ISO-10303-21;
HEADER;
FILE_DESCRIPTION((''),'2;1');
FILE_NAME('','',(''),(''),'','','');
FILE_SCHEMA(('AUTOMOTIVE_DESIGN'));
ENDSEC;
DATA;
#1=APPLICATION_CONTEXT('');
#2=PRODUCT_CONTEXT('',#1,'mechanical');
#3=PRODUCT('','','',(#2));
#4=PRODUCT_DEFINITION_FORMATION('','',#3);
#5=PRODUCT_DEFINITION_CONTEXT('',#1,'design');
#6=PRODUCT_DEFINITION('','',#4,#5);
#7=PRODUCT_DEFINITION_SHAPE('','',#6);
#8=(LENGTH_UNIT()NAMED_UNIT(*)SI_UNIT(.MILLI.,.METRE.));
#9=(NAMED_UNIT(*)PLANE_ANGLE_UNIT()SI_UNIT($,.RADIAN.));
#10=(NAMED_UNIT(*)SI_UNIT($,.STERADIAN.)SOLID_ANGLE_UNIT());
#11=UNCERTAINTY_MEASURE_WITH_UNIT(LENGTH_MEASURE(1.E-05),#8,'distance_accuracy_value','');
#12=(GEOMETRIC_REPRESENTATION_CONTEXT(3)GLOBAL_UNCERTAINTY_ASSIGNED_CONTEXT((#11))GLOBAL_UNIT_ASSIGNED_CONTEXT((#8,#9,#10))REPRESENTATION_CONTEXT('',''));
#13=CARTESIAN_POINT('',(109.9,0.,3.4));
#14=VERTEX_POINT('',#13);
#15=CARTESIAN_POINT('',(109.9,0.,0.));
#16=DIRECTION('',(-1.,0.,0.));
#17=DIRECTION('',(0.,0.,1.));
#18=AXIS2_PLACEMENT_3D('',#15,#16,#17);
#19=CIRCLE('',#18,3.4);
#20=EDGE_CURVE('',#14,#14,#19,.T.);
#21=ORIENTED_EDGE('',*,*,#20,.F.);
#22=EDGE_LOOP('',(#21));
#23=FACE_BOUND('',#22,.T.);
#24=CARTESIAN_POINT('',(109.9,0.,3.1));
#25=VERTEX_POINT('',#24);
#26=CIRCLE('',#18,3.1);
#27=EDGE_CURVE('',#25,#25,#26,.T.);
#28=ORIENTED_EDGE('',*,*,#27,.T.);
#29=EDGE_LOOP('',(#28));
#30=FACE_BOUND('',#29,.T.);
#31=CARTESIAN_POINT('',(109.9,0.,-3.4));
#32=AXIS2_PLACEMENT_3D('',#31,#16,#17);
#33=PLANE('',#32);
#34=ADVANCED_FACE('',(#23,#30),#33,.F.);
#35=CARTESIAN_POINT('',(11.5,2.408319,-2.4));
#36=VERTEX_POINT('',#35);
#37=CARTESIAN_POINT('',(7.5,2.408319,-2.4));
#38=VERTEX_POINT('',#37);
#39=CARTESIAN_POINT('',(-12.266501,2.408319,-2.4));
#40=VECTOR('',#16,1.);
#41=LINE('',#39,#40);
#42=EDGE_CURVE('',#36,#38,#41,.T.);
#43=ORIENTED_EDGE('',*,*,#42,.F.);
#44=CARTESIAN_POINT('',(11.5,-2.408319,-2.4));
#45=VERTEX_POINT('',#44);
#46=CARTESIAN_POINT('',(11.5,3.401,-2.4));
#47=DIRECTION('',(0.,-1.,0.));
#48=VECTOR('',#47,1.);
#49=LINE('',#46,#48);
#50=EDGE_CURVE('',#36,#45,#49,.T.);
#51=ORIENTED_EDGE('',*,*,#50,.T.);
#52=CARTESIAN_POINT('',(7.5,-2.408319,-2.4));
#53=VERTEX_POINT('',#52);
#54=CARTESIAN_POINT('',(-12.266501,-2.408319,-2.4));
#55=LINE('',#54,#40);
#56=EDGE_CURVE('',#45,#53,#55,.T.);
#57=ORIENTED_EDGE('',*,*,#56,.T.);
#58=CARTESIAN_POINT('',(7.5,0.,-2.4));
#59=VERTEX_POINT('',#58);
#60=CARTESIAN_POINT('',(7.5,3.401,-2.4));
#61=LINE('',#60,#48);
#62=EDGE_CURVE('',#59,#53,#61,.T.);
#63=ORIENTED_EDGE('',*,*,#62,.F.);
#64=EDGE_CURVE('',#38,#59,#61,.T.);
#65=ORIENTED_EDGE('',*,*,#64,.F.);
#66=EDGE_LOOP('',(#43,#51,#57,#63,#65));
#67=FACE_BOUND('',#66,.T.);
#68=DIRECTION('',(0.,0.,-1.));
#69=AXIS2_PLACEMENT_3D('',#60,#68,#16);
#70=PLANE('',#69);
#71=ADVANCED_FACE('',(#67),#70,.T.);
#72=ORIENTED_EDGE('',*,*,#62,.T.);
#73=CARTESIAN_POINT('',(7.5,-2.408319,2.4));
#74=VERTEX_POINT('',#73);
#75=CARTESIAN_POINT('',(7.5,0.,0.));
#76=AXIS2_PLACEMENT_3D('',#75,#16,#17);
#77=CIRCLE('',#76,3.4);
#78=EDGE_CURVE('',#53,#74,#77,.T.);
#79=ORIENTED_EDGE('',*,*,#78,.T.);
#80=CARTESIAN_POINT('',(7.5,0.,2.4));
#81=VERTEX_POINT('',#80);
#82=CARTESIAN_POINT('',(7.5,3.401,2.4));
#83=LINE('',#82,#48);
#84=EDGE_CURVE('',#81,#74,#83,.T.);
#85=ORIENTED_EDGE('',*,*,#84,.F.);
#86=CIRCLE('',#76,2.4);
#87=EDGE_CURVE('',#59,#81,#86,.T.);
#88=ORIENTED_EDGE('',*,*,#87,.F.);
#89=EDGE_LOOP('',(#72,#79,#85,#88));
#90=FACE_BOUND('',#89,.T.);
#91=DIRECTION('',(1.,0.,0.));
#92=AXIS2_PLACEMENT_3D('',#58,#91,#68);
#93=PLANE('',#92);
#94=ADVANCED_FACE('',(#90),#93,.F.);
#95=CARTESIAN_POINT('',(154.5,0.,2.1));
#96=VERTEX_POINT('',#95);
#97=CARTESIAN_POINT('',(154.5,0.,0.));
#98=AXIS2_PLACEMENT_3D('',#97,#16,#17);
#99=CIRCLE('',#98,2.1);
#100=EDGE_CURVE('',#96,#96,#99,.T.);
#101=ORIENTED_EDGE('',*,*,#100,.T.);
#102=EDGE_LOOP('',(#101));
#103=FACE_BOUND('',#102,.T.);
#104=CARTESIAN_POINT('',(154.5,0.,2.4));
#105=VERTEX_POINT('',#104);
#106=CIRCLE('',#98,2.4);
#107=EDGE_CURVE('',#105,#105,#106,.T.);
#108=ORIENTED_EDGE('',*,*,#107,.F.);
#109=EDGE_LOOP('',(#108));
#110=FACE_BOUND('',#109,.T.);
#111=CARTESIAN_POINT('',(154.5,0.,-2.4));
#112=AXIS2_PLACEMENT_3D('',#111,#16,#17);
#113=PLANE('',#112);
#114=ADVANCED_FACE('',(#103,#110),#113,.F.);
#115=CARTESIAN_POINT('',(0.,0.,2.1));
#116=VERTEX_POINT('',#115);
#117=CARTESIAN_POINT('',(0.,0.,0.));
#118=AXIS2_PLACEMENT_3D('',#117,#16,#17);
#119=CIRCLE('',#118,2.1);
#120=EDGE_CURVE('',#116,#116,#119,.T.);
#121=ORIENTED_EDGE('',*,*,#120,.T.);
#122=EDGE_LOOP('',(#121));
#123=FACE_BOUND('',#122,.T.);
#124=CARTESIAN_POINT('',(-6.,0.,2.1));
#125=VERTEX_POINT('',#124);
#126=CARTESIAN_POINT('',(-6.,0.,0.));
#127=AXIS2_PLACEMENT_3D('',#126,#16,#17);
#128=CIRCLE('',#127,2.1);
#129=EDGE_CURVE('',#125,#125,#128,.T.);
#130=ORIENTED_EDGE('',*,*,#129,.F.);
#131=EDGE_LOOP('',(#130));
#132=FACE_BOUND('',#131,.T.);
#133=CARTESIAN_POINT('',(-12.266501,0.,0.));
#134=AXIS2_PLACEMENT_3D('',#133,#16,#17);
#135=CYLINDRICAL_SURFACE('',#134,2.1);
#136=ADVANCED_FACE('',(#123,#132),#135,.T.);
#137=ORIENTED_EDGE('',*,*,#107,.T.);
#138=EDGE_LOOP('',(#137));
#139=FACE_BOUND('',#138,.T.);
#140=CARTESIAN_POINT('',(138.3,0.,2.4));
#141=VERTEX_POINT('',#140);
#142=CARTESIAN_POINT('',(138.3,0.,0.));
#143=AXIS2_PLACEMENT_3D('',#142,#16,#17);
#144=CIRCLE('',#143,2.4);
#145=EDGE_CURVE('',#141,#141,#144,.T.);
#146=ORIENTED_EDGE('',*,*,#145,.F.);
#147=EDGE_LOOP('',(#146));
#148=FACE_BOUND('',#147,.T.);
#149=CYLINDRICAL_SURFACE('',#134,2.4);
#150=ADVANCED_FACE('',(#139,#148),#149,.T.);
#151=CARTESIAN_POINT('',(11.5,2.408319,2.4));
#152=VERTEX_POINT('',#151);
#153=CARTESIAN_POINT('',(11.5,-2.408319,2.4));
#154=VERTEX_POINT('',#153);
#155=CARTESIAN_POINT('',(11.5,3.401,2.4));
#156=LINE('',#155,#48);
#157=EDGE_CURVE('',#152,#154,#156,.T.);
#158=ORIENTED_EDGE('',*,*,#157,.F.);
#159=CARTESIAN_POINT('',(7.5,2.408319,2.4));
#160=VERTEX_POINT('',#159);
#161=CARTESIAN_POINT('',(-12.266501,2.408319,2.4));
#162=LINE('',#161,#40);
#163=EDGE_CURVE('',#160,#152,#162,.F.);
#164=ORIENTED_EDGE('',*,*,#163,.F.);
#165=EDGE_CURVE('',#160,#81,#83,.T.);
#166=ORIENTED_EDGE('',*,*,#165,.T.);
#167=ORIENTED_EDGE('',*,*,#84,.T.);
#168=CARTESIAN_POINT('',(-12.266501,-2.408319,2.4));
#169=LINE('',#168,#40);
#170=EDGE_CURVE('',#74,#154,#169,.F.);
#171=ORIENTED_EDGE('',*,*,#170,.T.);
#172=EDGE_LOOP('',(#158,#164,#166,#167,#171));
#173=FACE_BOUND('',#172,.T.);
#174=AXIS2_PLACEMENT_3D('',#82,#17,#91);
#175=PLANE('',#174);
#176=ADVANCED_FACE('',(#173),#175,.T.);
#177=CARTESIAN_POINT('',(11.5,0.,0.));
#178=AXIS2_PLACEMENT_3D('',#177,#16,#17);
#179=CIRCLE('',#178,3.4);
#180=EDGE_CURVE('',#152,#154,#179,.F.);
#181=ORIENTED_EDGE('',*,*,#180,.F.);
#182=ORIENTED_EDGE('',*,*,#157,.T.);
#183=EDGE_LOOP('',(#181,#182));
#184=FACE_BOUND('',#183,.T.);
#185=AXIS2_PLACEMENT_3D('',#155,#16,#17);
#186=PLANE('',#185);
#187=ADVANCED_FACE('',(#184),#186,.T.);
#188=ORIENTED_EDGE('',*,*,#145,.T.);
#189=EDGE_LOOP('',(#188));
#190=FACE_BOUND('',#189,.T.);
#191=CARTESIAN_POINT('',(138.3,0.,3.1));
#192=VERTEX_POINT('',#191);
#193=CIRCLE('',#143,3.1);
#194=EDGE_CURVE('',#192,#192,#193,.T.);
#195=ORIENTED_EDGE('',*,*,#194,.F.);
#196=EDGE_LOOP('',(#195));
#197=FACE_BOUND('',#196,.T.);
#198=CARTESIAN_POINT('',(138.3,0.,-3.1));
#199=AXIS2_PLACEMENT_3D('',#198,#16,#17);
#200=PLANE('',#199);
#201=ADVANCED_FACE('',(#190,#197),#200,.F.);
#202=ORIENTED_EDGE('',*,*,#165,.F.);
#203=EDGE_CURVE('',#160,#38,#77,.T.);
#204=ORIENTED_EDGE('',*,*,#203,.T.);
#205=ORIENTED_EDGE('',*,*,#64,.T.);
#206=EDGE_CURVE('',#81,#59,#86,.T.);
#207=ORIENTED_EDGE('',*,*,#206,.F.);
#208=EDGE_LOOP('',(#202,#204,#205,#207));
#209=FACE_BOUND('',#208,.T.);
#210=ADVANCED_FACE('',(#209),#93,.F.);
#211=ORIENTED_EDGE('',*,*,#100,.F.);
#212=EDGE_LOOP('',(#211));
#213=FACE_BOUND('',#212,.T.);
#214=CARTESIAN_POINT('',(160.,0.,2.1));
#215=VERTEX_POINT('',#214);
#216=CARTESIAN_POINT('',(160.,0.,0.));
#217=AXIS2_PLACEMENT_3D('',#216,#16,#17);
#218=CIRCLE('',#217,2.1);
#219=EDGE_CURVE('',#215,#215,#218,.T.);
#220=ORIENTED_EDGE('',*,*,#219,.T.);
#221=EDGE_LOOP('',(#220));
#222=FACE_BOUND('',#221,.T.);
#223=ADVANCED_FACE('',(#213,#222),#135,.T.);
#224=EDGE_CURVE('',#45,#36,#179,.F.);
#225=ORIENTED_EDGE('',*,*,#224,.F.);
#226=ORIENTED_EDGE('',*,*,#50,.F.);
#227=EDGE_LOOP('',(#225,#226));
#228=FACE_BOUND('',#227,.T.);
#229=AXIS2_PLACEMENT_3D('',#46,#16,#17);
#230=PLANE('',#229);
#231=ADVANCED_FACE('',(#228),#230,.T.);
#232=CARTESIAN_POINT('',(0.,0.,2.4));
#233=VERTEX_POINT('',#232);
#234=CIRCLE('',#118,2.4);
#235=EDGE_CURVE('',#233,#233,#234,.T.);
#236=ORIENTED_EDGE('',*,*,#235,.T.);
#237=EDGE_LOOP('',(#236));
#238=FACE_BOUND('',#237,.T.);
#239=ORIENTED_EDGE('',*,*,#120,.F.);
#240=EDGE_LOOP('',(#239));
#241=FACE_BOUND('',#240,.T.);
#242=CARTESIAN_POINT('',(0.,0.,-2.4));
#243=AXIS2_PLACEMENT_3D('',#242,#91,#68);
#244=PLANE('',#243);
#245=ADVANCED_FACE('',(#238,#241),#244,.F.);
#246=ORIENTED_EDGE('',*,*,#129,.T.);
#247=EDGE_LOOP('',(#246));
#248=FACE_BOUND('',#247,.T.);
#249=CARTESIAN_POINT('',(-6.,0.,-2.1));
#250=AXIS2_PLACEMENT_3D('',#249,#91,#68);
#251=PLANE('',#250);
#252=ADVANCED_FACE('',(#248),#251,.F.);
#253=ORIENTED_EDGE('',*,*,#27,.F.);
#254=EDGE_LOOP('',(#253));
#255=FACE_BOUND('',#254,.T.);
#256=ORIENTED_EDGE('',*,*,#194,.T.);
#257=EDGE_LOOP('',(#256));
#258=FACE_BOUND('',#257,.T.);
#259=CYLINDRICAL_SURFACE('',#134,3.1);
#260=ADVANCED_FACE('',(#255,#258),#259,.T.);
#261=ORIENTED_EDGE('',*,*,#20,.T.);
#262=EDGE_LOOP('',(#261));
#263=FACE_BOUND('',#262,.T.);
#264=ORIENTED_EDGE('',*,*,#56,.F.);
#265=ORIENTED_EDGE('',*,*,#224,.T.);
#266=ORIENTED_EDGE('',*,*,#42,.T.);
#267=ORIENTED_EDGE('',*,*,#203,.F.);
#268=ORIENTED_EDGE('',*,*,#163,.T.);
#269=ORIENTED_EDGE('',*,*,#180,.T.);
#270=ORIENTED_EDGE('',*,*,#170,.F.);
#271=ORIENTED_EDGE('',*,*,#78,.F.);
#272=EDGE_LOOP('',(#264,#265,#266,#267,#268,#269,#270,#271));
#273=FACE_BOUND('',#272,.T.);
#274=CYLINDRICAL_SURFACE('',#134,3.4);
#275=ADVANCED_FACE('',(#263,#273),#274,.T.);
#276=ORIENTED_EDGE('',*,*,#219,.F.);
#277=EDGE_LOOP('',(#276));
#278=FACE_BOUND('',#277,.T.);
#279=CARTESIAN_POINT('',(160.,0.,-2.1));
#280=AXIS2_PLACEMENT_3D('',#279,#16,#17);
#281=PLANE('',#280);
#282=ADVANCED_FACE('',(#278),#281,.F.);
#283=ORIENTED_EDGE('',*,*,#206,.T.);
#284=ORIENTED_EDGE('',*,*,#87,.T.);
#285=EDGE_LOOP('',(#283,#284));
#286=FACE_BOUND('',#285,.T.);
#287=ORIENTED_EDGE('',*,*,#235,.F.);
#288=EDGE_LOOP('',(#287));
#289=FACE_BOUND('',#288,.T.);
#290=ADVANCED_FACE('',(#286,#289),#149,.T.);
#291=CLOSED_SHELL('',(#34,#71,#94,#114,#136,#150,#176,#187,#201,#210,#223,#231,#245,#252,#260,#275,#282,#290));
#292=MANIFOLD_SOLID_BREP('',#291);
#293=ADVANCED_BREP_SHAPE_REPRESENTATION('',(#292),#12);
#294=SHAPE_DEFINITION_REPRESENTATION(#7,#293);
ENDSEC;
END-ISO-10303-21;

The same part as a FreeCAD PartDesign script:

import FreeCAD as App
import Part
import Sketcher
Q = App.Units.Quantity


def add_polygon(sketch, points):
    """Adds a closed chain of lines whose ends are joined by coincident constraints."""
    first, n = sketch.GeometryCount, len(points)
    for a, b in zip(points, points[1:] + points[:1]):
        sketch.addGeometry(Part.LineSegment(App.Vector(*a, 0), App.Vector(*b, 0)), False)
    for i in range(n):
        sketch.addConstraint(Sketcher.Constraint("Coincident", first + i, 2, first + (i + 1) % n, 1))

doc = App.newDocument("Part")
params = doc.addObject("Spreadsheet::Sheet", "Params")
for row, (alias, value) in enumerate([
    ("sketch1_width", "6 mm"),
    ("sketch1_width2", "166 mm"),
    ("sketch1_height", "1 mm"),
    ("sketch1_width3", "5.5 mm"),
    ("sketch1_width4", "16.2 mm"),
    ("revolution_angle", "360 deg"),
    ("sketch2_width", "4 mm"),
    ("sketch2_height", "1 mm"),
    ("pocket1_length", "2.408319 mm"),
    ("sketch3_width", "4 mm"),
    ("sketch3_height", "1 mm"),
    ("pocket2_length", "2.408319 mm"),
    ("sketch4_width", "4 mm"),
    ("sketch4_height", "1 mm"),
    ("pocket3_length", "2.408319 mm"),
    ("sketch5_width", "4 mm"),
    ("sketch5_height", "1 mm"),
    ("pocket4_length", "2.408319 mm"),
], start=1):
    params.set(f"A{row}", alias)
    params.set(f"B{row}", "=" + value)
    params.setAlias(f"B{row}", alias)

body = doc.addObject("PartDesign::Body", "Body")

# Sketch on XZ plane
sketch1 = doc.addObject("Sketcher::SketchObject", "Sketch")
body.addObject(sketch1)
sketch1.AttachmentSupport = (doc.XZ_Plane, [""])
sketch1.MapMode = "FlatFace"
add_polygon(sketch1, [(0, -2.4), (0, -2.1), (-6, -2.1), (-6, 0), (160, 0), (160, -2.1), (154.5, -2.1), (154.5, -2.4), (138.3, -2.4), (138.3, -3.1), (109.9, -3.1), (109.9, -3.4), (7.5, -3.4), (7.5, -2.4)])  # lines 0-13
sketch1.addConstraint(Sketcher.Constraint("Vertical", 0))
sketch1.addConstraint(Sketcher.Constraint("Horizontal", 1))
sketch1.addConstraint(Sketcher.Constraint("Vertical", 2))
sketch1.addConstraint(Sketcher.Constraint("Horizontal", 3))
sketch1.addConstraint(Sketcher.Constraint("Vertical", 4))
sketch1.addConstraint(Sketcher.Constraint("Horizontal", 5))
sketch1.addConstraint(Sketcher.Constraint("Vertical", 6))
sketch1.addConstraint(Sketcher.Constraint("Horizontal", 7))
sketch1.addConstraint(Sketcher.Constraint("Vertical", 8))
sketch1.addConstraint(Sketcher.Constraint("Horizontal", 9))
sketch1.addConstraint(Sketcher.Constraint("Vertical", 10))
sketch1.addConstraint(Sketcher.Constraint("Horizontal", 11))
sketch1.addConstraint(Sketcher.Constraint("Vertical", 12))
sketch1.addConstraint(Sketcher.Constraint("Horizontal", 13))
sketch1.addConstraint(Sketcher.Constraint("PointOnObject", 0, 2, -2))
sketch1.addConstraint(Sketcher.Constraint("PointOnObject", 2, 2, -1))
sketch1.addConstraint(Sketcher.Constraint("Horizontal", 1, 2, 4, 2))
sketch1.addConstraint(Sketcher.Constraint("Horizontal", 7, 2, 12, 2))
sketch1.addConstraint(Sketcher.Constraint("Equal", 6, 10))
sketch1.addConstraint(Sketcher.Constraint("DistanceX", 1, 2, 1, 1, Q("6 mm")))
sketch1.addConstraint(Sketcher.Constraint("DistanceX", 3, 1, 3, 2, Q("166 mm")))
sketch1.addConstraint(Sketcher.Constraint("DistanceY", 12, 1, 12, 2, Q("1 mm")))
sketch1.addConstraint(Sketcher.Constraint("DistanceX", 5, 2, 5, 1, Q("5.5 mm")))
sketch1.addConstraint(Sketcher.Constraint("DistanceX", 7, 2, 7, 1, Q("16.2 mm")))
sketch1.addConstraint(Sketcher.Constraint("DistanceX", 9, 2, 9, 1, Q("28.4 mm")))
sketch1.addConstraint(Sketcher.Constraint("DistanceX", 11, 2, 11, 1, Q("102.4 mm")))
sketch1.addConstraint(Sketcher.Constraint("DistanceY", 0, 1, 0, 2, Q("0.3 mm")))
sketch1.addConstraint(Sketcher.Constraint("DistanceY", 2, 1, 2, 2, Q("2.1 mm")))
sketch1.setExpression("Constraints[33]", "Params.sketch1_width")
sketch1.setExpression("Constraints[34]", "Params.sketch1_width2")
sketch1.setExpression("Constraints[35]", "Params.sketch1_height")
sketch1.setExpression("Constraints[36]", "Params.sketch1_width3")
sketch1.setExpression("Constraints[37]", "Params.sketch1_width4")
revolution = doc.addObject("PartDesign::Revolution", "Revolution")
body.addObject(revolution)
revolution.Profile = sketch1
revolution.ReferenceAxis = (sketch1, ["H_Axis"])
revolution.setExpression("Angle", "Params.revolution_angle")

# Sketch on XZ plane
sketch2 = doc.addObject("Sketcher::SketchObject", "Sketch001")
body.addObject(sketch2)
sketch2.AttachmentSupport = (doc.XZ_Plane, [""])
sketch2.MapMode = "FlatFace"
add_polygon(sketch2, [(7.5, -3.4), (7.5, -2.4), (11.5, -2.4), (11.5, -3.4)])  # lines 0-3
sketch2.addConstraint(Sketcher.Constraint("Vertical", 0))
sketch2.addConstraint(Sketcher.Constraint("Horizontal", 1))
sketch2.addConstraint(Sketcher.Constraint("Vertical", 2))
sketch2.addConstraint(Sketcher.Constraint("Horizontal", 3))
sketch2.addConstraint(Sketcher.Constraint("DistanceX", 1, 1, 1, 2, Q("4 mm")))
sketch2.addConstraint(Sketcher.Constraint("DistanceY", 0, 1, 0, 2, Q("1 mm")))
sketch2.addConstraint(Sketcher.Constraint("DistanceX", -1, 1, 0, 2, Q("7.5 mm")))
sketch2.addConstraint(Sketcher.Constraint("DistanceY", 0, 2, -1, 1, Q("2.4 mm")))
sketch2.setExpression("Constraints[8]", "Params.sketch2_width")
sketch2.setExpression("Constraints[9]", "Params.sketch2_height")
pocket1 = doc.addObject("PartDesign::Pocket", "Pocket")
body.addObject(pocket1)
pocket1.Profile = sketch2
pocket1.setExpression("Length", "Params.pocket1_length")
pocket1.Reversed = True

# Sketch on XZ plane
sketch3 = doc.addObject("Sketcher::SketchObject", "Sketch002")
body.addObject(sketch3)
sketch3.AttachmentSupport = (doc.XZ_Plane, [""])
sketch3.MapMode = "FlatFace"
add_polygon(sketch3, [(7.5, 2.4), (7.5, 3.4), (11.5, 3.4), (11.5, 2.4)])  # lines 0-3
sketch3.addConstraint(Sketcher.Constraint("Vertical", 0))
sketch3.addConstraint(Sketcher.Constraint("Horizontal", 1))
sketch3.addConstraint(Sketcher.Constraint("Vertical", 2))
sketch3.addConstraint(Sketcher.Constraint("Horizontal", 3))
sketch3.addConstraint(Sketcher.Constraint("DistanceX", 1, 1, 1, 2, Q("4 mm")))
sketch3.addConstraint(Sketcher.Constraint("DistanceY", 0, 1, 0, 2, Q("1 mm")))
sketch3.addConstraint(Sketcher.Constraint("DistanceX", -1, 1, 0, 2, Q("7.5 mm")))
sketch3.addConstraint(Sketcher.Constraint("DistanceY", -1, 1, 0, 2, Q("3.4 mm")))
sketch3.setExpression("Constraints[8]", "Params.sketch3_width")
sketch3.setExpression("Constraints[9]", "Params.sketch3_height")
pocket2 = doc.addObject("PartDesign::Pocket", "Pocket001")
body.addObject(pocket2)
pocket2.Profile = sketch3
pocket2.setExpression("Length", "Params.pocket2_length")
pocket2.Reversed = True

# Sketch on XZ plane
sketch4 = doc.addObject("Sketcher::SketchObject", "Sketch003")
body.addObject(sketch4)
sketch4.AttachmentSupport = (doc.XZ_Plane, [""])
sketch4.MapMode = "FlatFace"
add_polygon(sketch4, [(7.5, -3.4), (7.5, -2.4), (11.5, -2.4), (11.5, -3.4)])  # lines 0-3
sketch4.addConstraint(Sketcher.Constraint("Vertical", 0))
sketch4.addConstraint(Sketcher.Constraint("Horizontal", 1))
sketch4.addConstraint(Sketcher.Constraint("Vertical", 2))
sketch4.addConstraint(Sketcher.Constraint("Horizontal", 3))
sketch4.addConstraint(Sketcher.Constraint("DistanceX", 1, 1, 1, 2, Q("4 mm")))
sketch4.addConstraint(Sketcher.Constraint("DistanceY", 0, 1, 0, 2, Q("1 mm")))
sketch4.addConstraint(Sketcher.Constraint("DistanceX", -1, 1, 0, 2, Q("7.5 mm")))
sketch4.addConstraint(Sketcher.Constraint("DistanceY", 0, 2, -1, 1, Q("2.4 mm")))
sketch4.setExpression("Constraints[8]", "Params.sketch4_width")
sketch4.setExpression("Constraints[9]", "Params.sketch4_height")
pocket3 = doc.addObject("PartDesign::Pocket", "Pocket002")
body.addObject(pocket3)
pocket3.Profile = sketch4
pocket3.setExpression("Length", "Params.pocket3_length")

# Sketch on XZ plane
sketch5 = doc.addObject("Sketcher::SketchObject", "Sketch004")
body.addObject(sketch5)
sketch5.AttachmentSupport = (doc.XZ_Plane, [""])
sketch5.MapMode = "FlatFace"
add_polygon(sketch5, [(7.5, 2.4), (7.5, 3.4), (11.5, 3.4), (11.5, 2.4)])  # lines 0-3
sketch5.addConstraint(Sketcher.Constraint("Vertical", 0))
sketch5.addConstraint(Sketcher.Constraint("Horizontal", 1))
sketch5.addConstraint(Sketcher.Constraint("Vertical", 2))
sketch5.addConstraint(Sketcher.Constraint("Horizontal", 3))
sketch5.addConstraint(Sketcher.Constraint("DistanceX", 1, 1, 1, 2, Q("4 mm")))
sketch5.addConstraint(Sketcher.Constraint("DistanceY", 0, 1, 0, 2, Q("1 mm")))
sketch5.addConstraint(Sketcher.Constraint("DistanceX", -1, 1, 0, 2, Q("7.5 mm")))
sketch5.addConstraint(Sketcher.Constraint("DistanceY", -1, 1, 0, 2, Q("3.4 mm")))
sketch5.setExpression("Constraints[8]", "Params.sketch5_width")
sketch5.setExpression("Constraints[9]", "Params.sketch5_height")
pocket4 = doc.addObject("PartDesign::Pocket", "Pocket003")
body.addObject(pocket4)
pocket4.Profile = sketch5
pocket4.setExpression("Length", "Params.pocket4_length")

doc.recompute()
